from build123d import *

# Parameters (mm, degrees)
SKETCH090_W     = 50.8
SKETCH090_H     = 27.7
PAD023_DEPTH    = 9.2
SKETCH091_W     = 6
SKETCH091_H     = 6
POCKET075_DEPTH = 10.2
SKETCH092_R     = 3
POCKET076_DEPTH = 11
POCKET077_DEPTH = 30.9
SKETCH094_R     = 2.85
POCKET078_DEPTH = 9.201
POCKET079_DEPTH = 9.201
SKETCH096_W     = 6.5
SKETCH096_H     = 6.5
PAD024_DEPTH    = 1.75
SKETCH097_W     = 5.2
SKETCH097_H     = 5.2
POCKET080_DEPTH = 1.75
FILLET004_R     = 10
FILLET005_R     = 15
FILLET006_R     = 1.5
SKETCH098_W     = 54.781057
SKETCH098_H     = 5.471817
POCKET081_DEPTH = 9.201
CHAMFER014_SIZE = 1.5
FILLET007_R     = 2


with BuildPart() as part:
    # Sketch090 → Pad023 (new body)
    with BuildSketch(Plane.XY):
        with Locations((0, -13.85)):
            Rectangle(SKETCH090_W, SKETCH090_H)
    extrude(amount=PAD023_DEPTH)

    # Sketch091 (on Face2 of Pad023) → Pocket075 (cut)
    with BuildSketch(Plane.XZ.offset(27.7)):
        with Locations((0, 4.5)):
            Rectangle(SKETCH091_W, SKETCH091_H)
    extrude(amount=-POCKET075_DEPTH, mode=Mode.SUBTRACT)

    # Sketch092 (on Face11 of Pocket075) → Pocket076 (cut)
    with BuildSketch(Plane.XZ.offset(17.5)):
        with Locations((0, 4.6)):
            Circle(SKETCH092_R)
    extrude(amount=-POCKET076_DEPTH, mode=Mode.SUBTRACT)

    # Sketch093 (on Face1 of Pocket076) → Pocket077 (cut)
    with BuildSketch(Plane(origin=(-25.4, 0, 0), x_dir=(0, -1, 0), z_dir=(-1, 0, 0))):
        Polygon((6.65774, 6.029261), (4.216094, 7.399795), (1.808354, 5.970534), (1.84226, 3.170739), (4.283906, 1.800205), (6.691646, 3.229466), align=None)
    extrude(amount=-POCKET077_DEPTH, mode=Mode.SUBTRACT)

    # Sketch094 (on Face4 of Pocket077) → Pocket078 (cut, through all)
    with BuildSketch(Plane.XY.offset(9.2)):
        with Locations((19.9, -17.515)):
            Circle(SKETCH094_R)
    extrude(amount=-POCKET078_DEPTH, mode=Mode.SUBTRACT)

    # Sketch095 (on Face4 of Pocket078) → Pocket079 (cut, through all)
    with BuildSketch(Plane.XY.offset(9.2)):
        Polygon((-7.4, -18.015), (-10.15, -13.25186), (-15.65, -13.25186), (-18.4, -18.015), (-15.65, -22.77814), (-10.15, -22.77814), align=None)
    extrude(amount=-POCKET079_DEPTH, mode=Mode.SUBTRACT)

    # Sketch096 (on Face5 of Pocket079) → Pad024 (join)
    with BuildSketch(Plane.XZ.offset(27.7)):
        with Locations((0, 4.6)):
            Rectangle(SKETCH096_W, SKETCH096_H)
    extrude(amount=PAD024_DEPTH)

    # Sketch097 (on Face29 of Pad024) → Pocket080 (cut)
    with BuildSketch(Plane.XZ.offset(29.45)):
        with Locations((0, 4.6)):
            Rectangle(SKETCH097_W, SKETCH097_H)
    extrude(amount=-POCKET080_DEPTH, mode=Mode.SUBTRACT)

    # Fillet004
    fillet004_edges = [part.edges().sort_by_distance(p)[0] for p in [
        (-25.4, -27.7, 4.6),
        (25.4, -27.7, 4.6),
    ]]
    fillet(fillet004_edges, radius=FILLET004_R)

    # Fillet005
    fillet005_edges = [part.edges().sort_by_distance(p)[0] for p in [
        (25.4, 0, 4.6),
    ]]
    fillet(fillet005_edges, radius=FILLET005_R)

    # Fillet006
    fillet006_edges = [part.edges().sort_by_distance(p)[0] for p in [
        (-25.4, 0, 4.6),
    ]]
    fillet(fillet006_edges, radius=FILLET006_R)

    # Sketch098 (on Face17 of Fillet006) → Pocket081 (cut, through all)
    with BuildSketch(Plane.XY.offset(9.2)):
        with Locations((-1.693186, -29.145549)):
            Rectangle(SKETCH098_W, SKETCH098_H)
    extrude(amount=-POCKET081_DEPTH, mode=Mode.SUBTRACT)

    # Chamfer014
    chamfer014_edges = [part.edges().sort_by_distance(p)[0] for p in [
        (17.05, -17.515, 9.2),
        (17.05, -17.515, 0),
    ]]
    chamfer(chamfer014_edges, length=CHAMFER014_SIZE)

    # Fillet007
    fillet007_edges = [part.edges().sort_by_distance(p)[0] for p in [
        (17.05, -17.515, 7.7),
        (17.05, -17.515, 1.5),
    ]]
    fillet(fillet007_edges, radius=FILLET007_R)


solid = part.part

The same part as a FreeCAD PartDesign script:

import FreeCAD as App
import Part
import Sketcher

V = App.Vector
Q = App.Units.Quantity


def edges_at(feature, points):
    """Names of the edges that pass closest to the given points."""
    edges = feature.Shape.Edges
    near = lambda p: min(range(len(edges)), key=lambda i: edges[i].distToShape(Part.Vertex(*p))[0])
    return sorted({f"Edge{near(p) + 1}" for p in points})

doc = App.newDocument("Part")
body = doc.addObject("PartDesign::Body", "Body")

sketch1 = doc.addObject("Sketcher::SketchObject", "Sketch")
body.addObject(sketch1)
sketch1.AttachmentSupport = (doc.XY_Plane, [""])
sketch1.MapMode = "FlatFace"
sketch1.addGeometry([
    Part.LineSegment(V(-25.4, 0, 0), V(-25.4, -27.7, 0)),
    Part.LineSegment(V(-25.4, -27.7, 0), V(25.4, -27.7, 0)),
    Part.LineSegment(V(25.4, -27.7, 0), V(25.4, 0, 0)),
    Part.LineSegment(V(25.4, 0, 0), V(-25.4, 0, 0)),
], False)
sketch1.addConstraint([
    Sketcher.Constraint("Coincident", 0, 2, 1, 1),
    Sketcher.Constraint("Coincident", 1, 2, 2, 1),
    Sketcher.Constraint("Coincident", 2, 2, 3, 1),
    Sketcher.Constraint("Coincident", 3, 2, 0, 1),
    Sketcher.Constraint("Vertical", 0),
    Sketcher.Constraint("Horizontal", 1),
    Sketcher.Constraint("Vertical", 2),
    Sketcher.Constraint("Horizontal", 3),
    Sketcher.Constraint("Symmetric", 2, 2, 3, 2, -1, 1),
    Sketcher.Constraint("DistanceX", 1, 1, 1, 2, Q("50.8 mm")),
    Sketcher.Constraint("DistanceY", 0, 2, 0, 1, Q("27.7 mm")),
])
pad1 = doc.addObject("PartDesign::Pad", "Pad")
body.addObject(pad1)
pad1.Profile = sketch1
pad1.Length = 9.2

sketch2 = doc.addObject("Sketcher::SketchObject", "Sketch001")
body.addObject(sketch2)
sketch2.AttachmentSupport = (doc.XZ_Plane, [""])
sketch2.MapMode = "FlatFace"
sketch2.AttachmentOffset = App.Placement(V(0, 0, 27.7), App.Rotation())
sketch2.addGeometry([
    Part.LineSegment(V(-3, 7.5, 0), V(-3, 1.5, 0)),
    Part.LineSegment(V(-3, 1.5, 0), V(3, 1.5, 0)),
    Part.LineSegment(V(3, 1.5, 0), V(3, 7.5, 0)),
    Part.LineSegment(V(3, 7.5, 0), V(-3, 7.5, 0)),
], False)
sketch2.addConstraint([
    Sketcher.Constraint("Coincident", 0, 2, 1, 1),
    Sketcher.Constraint("Coincident", 1, 2, 2, 1),
    Sketcher.Constraint("Coincident", 2, 2, 3, 1),
    Sketcher.Constraint("Coincident", 3, 2, 0, 1),
    Sketcher.Constraint("Vertical", 0),
    Sketcher.Constraint("Horizontal", 1),
    Sketcher.Constraint("Vertical", 2),
    Sketcher.Constraint("Horizontal", 3),
    Sketcher.Constraint("Equal", 3, 0),
    Sketcher.Constraint("DistanceX", 1, 1, 1, 2, Q("6 mm")),
    Sketcher.Constraint("DistanceX", 0, 2, -1, 1, Q("3 mm")),
    Sketcher.Constraint("DistanceY", -1, 1, 0, 2, Q("1.5 mm")),
])
pocket1 = doc.addObject("PartDesign::Pocket", "Pocket")
body.addObject(pocket1)
pocket1.Profile = sketch2
pocket1.Length = 10.2

sketch3 = doc.addObject("Sketcher::SketchObject", "Sketch002")
body.addObject(sketch3)
sketch3.AttachmentSupport = (doc.XZ_Plane, [""])
sketch3.MapMode = "FlatFace"
sketch3.AttachmentOffset = App.Placement(V(0, 0, 17.5), App.Rotation())
sketch3.addGeometry(Part.Circle(V(0, 4.6, 0), V(0, 0, 1), 3), False)
sketch3.addConstraint([
    Sketcher.Constraint("PointOnObject", 0, 3, -2),
    Sketcher.Constraint("Diameter", 0, Q("6 mm")),
    Sketcher.Constraint("DistanceY", -1, 1, 0, 3, Q("4.6 mm")),
])
pocket2 = doc.addObject("PartDesign::Pocket", "Pocket001")
body.addObject(pocket2)
pocket2.Profile = sketch3
pocket2.Length = 11

sketch4 = doc.addObject("Sketcher::SketchObject", "Sketch003")
body.addObject(sketch4)
sketch4.AttachmentSupport = (doc.YZ_Plane, [""])
sketch4.MapMode = "FlatFace"
sketch4.AttachmentOffset = App.Placement(V(0, 0, -25.4), App.Rotation())
sketch4.addGeometry([
    Part.LineSegment(V(-6.65774, 6.029261, 0), V(-4.216094, 7.399795, 0)),
    Part.LineSegment(V(-4.216094, 7.399795, 0), V(-1.808354, 5.970534, 0)),
    Part.LineSegment(V(-1.808354, 5.970534, 0), V(-1.84226, 3.170739, 0)),
    Part.LineSegment(V(-1.84226, 3.170739, 0), V(-4.283906, 1.800205, 0)),
    Part.LineSegment(V(-4.283906, 1.800205, 0), V(-6.691646, 3.229466, 0)),
    Part.LineSegment(V(-6.691646, 3.229466, 0), V(-6.65774, 6.029261, 0)),
], False)
sketch4.addConstraint([
    Sketcher.Constraint("Coincident", 0, 2, 1, 1),
    Sketcher.Constraint("Coincident", 1, 2, 2, 1),
    Sketcher.Constraint("Coincident", 2, 2, 3, 1),
    Sketcher.Constraint("Coincident", 3, 2, 4, 1),
    Sketcher.Constraint("Coincident", 4, 2, 5, 1),
    Sketcher.Constraint("Coincident", 5, 2, 0, 1),
    Sketcher.Constraint("Parallel", 0, 3),
    Sketcher.Constraint("Parallel", 1, 4),
    Sketcher.Constraint("Parallel", 2, 5),
    Sketcher.Constraint("Equal", 0, 1),
    Sketcher.Constraint("Equal", 1, 2),
    Sketcher.Constraint("Equal", 2, 3),
    Sketcher.Constraint("Distance", 0, Q("2.8 mm")),
    Sketcher.Constraint("DistanceX", 2, 2, -1, 1, Q("1.84226 mm")),
    Sketcher.Constraint("DistanceY", -1, 1, 2, 2, Q("3.170739 mm")),
    Sketcher.Constraint("DistanceX", 5, 2, -1, 1, Q("6.65774 mm")),
    Sketcher.Constraint("DistanceY", -1, 1, 5, 2, Q("6.029261 mm")),
    Sketcher.Constraint("DistanceX", 0, 2, 1, 2, Q("2.40774 mm")),
])
pocket3 = doc.addObject("PartDesign::Pocket", "Pocket002")
body.addObject(pocket3)
pocket3.Profile = sketch4
pocket3.Length = 30.9
pocket3.Reversed = True

sketch5 = doc.addObject("Sketcher::SketchObject", "Sketch004")
body.addObject(sketch5)
sketch5.AttachmentSupport = (doc.XY_Plane, [""])
sketch5.MapMode = "FlatFace"
sketch5.AttachmentOffset = App.Placement(V(0, 0, 9.2), App.Rotation())
sketch5.addGeometry(Part.Circle(V(19.9, -17.515, 0), V(0, 0, 1), 2.85), False)
sketch5.addConstraint([
    Sketcher.Constraint("Diameter", 0, Q("5.7 mm")),
    Sketcher.Constraint("DistanceX", -1, 1, 0, 3, Q("19.9 mm")),
    Sketcher.Constraint("DistanceY", 0, 3, -1, 1, Q("17.515 mm")),
])
pocket4 = doc.addObject("PartDesign::Pocket", "Pocket003")
body.addObject(pocket4)
pocket4.Profile = sketch5
pocket4.Type = "ThroughAll"

sketch6 = doc.addObject("Sketcher::SketchObject", "Sketch005")
body.addObject(sketch6)
sketch6.AttachmentSupport = (doc.XY_Plane, [""])
sketch6.MapMode = "FlatFace"
sketch6.AttachmentOffset = App.Placement(V(0, 0, 9.2), App.Rotation())
sketch6.addGeometry([
    Part.LineSegment(V(-7.4, -18.015, 0), V(-10.15, -13.25186, 0)),
    Part.LineSegment(V(-10.15, -13.25186, 0), V(-15.65, -13.25186, 0)),
    Part.LineSegment(V(-15.65, -13.25186, 0), V(-18.4, -18.015, 0)),
    Part.LineSegment(V(-18.4, -18.015, 0), V(-15.65, -22.77814, 0)),
    Part.LineSegment(V(-15.65, -22.77814, 0), V(-10.15, -22.77814, 0)),
    Part.LineSegment(V(-10.15, -22.77814, 0), V(-7.4, -18.015, 0)),
], False)
sketch6.addConstraint([
    Sketcher.Constraint("Coincident", 0, 2, 1, 1),
    Sketcher.Constraint("Coincident", 1, 2, 2, 1),
    Sketcher.Constraint("Coincident", 2, 2, 3, 1),
    Sketcher.Constraint("Coincident", 3, 2, 4, 1),
    Sketcher.Constraint("Coincident", 4, 2, 5, 1),
    Sketcher.Constraint("Coincident", 5, 2, 0, 1),
    Sketcher.Constraint("Horizontal", 1),
    Sketcher.Constraint("Horizontal", 4),
    Sketcher.Constraint("Parallel", 0, 3),
    Sketcher.Constraint("Parallel", 2, 5),
    Sketcher.Constraint("Horizontal", 2, 2, 5, 2),
    Sketcher.Constraint("Vertical", 1, 2, 3, 2),
    Sketcher.Constraint("Vertical", 0, 2, 4, 2),
    Sketcher.Constraint("Angle", 0, Q("119.999999 deg")),
    Sketcher.Constraint("DistanceX", 1, 2, 1, 1, Q("5.5 mm")),
    Sketcher.Constraint("DistanceX", 2, 2, 5, 2, Q("11 mm")),
    Sketcher.Constraint("DistanceX", 2, 2, -1, 1, Q("18.4 mm")),
    Sketcher.Constraint("DistanceY", 2, 2, -1, 1, Q("18.015 mm")),
])
pocket5 = doc.addObject("PartDesign::Pocket", "Pocket004")
body.addObject(pocket5)
pocket5.Profile = sketch6
pocket5.Type = "ThroughAll"

sketch7 = doc.addObject("Sketcher::SketchObject", "Sketch006")
body.addObject(sketch7)
sketch7.AttachmentSupport = (doc.XZ_Plane, [""])
sketch7.MapMode = "FlatFace"
sketch7.AttachmentOffset = App.Placement(V(0, 0, 27.7), App.Rotation())
sketch7.addGeometry([
    Part.LineSegment(V(-3.25, 7.85, 0), V(-3.25, 1.35, 0)),
    Part.LineSegment(V(-3.25, 1.35, 0), V(3.25, 1.35, 0)),
    Part.LineSegment(V(3.25, 1.35, 0), V(3.25, 7.85, 0)),
    Part.LineSegment(V(3.25, 7.85, 0), V(-3.25, 7.85, 0)),
], False)
sketch7.addConstraint([
    Sketcher.Constraint("Coincident", 0, 2, 1, 1),
    Sketcher.Constraint("Coincident", 1, 2, 2, 1),
    Sketcher.Constraint("Coincident", 2, 2, 3, 1),
    Sketcher.Constraint("Coincident", 3, 2, 0, 1),
    Sketcher.Constraint("Vertical", 0),
    Sketcher.Constraint("Horizontal", 1),
    Sketcher.Constraint("Vertical", 2),
    Sketcher.Constraint("Horizontal", 3),
    Sketcher.Constraint("Equal", 3, 0),
    Sketcher.Constraint("DistanceX", 1, 1, 1, 2, Q("6.5 mm")),
    Sketcher.Constraint("DistanceX", 0, 2, -1, 1, Q("3.25 mm")),
    Sketcher.Constraint("DistanceY", -1, 1, 0, 2, Q("1.35 mm")),
])
pad2 = doc.addObject("PartDesign::Pad", "Pad001")
body.addObject(pad2)
pad2.Profile = sketch7
pad2.Length = 1.75

sketch8 = doc.addObject("Sketcher::SketchObject", "Sketch007")
body.addObject(sketch8)
sketch8.AttachmentSupport = (doc.XZ_Plane, [""])
sketch8.MapMode = "FlatFace"
sketch8.AttachmentOffset = App.Placement(V(0, 0, 29.45), App.Rotation())
sketch8.addGeometry([
    Part.LineSegment(V(-2.6, 7.2, 0), V(-2.6, 2, 0)),
    Part.LineSegment(V(-2.6, 2, 0), V(2.6, 2, 0)),
    Part.LineSegment(V(2.6, 2, 0), V(2.6, 7.2, 0)),
    Part.LineSegment(V(2.6, 7.2, 0), V(-2.6, 7.2, 0)),
], False)
sketch8.addConstraint([
    Sketcher.Constraint("Coincident", 0, 2, 1, 1),
    Sketcher.Constraint("Coincident", 1, 2, 2, 1),
    Sketcher.Constraint("Coincident", 2, 2, 3, 1),
    Sketcher.Constraint("Coincident", 3, 2, 0, 1),
    Sketcher.Constraint("Vertical", 0),
    Sketcher.Constraint("Horizontal", 1),
    Sketcher.Constraint("Vertical", 2),
    Sketcher.Constraint("Horizontal", 3),
    Sketcher.Constraint("Equal", 3, 0),
    Sketcher.Constraint("DistanceX", 1, 1, 1, 2, Q("5.2 mm")),
    Sketcher.Constraint("DistanceY", -1, 1, 0, 2, Q("2 mm")),
    Sketcher.Constraint("DistanceX", 0, 2, -1, 1, Q("2.6 mm")),
])
pocket6 = doc.addObject("PartDesign::Pocket", "Pocket005")
body.addObject(pocket6)
pocket6.Profile = sketch8
pocket6.Length = 1.75
doc.recompute()

fillet = doc.addObject("PartDesign::Fillet", "Fillet")
body.addObject(fillet)
fillet.Base = (pocket6, edges_at(pocket6, [(-25.4, -27.7, 4.6), (25.4, -27.7, 4.6)]))
fillet.Radius = 10
doc.recompute()

fillet2 = doc.addObject("PartDesign::Fillet", "Fillet001")
body.addObject(fillet2)
fillet2.Base = (fillet, edges_at(fillet, [(25.4, 0, 4.6)]))
fillet2.Radius = 15
doc.recompute()

fillet3 = doc.addObject("PartDesign::Fillet", "Fillet002")
body.addObject(fillet3)
fillet3.Base = (fillet2, edges_at(fillet2, [(-25.4, 0, 4.6)]))
fillet3.Radius = 1.5

sketch9 = doc.addObject("Sketcher::SketchObject", "Sketch008")
body.addObject(sketch9)
sketch9.AttachmentSupport = (doc.XY_Plane, [""])
sketch9.MapMode = "FlatFace"
sketch9.AttachmentOffset = App.Placement(V(0, 0, 9.2), App.Rotation())
sketch9.addGeometry([
    Part.LineSegment(V(-29.083714, -26.40964, 0), V(-29.083714, -31.881457, 0)),
    Part.LineSegment(V(-29.083714, -31.881457, 0), V(25.697343, -31.881457, 0)),
    Part.LineSegment(V(25.697343, -31.881457, 0), V(25.697343, -26.40964, 0)),
    Part.LineSegment(V(25.697343, -26.40964, 0), V(-29.083714, -26.40964, 0)),
], False)
sketch9.addConstraint([
    Sketcher.Constraint("Coincident", 0, 2, 1, 1),
    Sketcher.Constraint("Coincident", 1, 2, 2, 1),
    Sketcher.Constraint("Coincident", 2, 2, 3, 1),
    Sketcher.Constraint("Coincident", 3, 2, 0, 1),
    Sketcher.Constraint("Vertical", 0),
    Sketcher.Constraint("Horizontal", 1),
    Sketcher.Constraint("Vertical", 2),
    Sketcher.Constraint("Horizontal", 3),
    Sketcher.Constraint("DistanceX", 1, 1, 1, 2, Q("54.781057 mm")),
    Sketcher.Constraint("DistanceY", 0, 2, 0, 1, Q("5.471817 mm")),
    Sketcher.Constraint("DistanceY", 2, 2, -1, 1, Q("26.40964 mm")),
    Sketcher.Constraint("DistanceX", 0, 2, -1, 1, Q("29.083714 mm")),
])
pocket7 = doc.addObject("PartDesign::Pocket", "Pocket006")
body.addObject(pocket7)
pocket7.Profile = sketch9
pocket7.Type = "ThroughAll"
doc.recompute()

chamfer = doc.addObject("PartDesign::Chamfer", "Chamfer")
body.addObject(chamfer)
chamfer.Base = (pocket7, edges_at(pocket7, [(17.05, -17.515, 9.2), (17.05, -17.515, 0)]))
chamfer.Size = 1.5
doc.recompute()

fillet4 = doc.addObject("PartDesign::Fillet", "Fillet003")
body.addObject(fillet4)
fillet4.Base = (chamfer, edges_at(chamfer, [(17.05, -17.515, 7.7), (17.05, -17.515, 1.5)]))
fillet4.Radius = 2

doc.recompute()
